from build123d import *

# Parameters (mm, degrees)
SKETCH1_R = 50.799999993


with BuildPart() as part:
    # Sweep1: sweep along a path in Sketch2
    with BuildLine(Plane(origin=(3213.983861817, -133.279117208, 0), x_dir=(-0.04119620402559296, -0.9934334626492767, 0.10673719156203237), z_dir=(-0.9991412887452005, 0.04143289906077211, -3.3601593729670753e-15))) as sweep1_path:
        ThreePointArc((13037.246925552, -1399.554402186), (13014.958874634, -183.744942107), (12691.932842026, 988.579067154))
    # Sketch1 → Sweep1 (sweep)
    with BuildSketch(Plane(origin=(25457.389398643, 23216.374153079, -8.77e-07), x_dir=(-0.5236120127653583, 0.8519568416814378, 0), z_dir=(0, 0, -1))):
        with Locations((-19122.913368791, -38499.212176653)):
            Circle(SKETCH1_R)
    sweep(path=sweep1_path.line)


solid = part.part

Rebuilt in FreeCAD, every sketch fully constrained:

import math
import FreeCAD as App
import Part
import Sketcher
Q = App.Units.Quantity

doc = App.newDocument("Part")
params = doc.addObject("Spreadsheet::Sheet", "Params")
for row, (alias, value) in enumerate([
    ("sketch1_diameter", "4 in"),
], start=1):
    params.set(f"A{row}", alias)
    params.set(f"B{row}", "=" + value)
    params.setAlias(f"B{row}", alias)

body = doc.addObject("PartDesign::Body", "Body")

# Sketch on XY plane
sketch1 = doc.addObject("Sketcher::SketchObject", "Sketch")
body.addObject(sketch1)
sketch1.AttachmentSupport = (doc.XY_Plane, [""])
sketch1.MapMode = "FlatFace"
sketch1.AttachmentOffset = App.Placement(App.Vector(0, 0, 0 * 25.4), App.Rotation())
sketch1.addGeometry(Part.Circle(App.Vector(2671, -13234, 0), App.Vector(0, 0, 1), 51), False)
sketch1.addConstraint(Sketcher.Constraint("Diameter", 0, Q("4 in")))
sketch1.addConstraint(Sketcher.Constraint("DistanceX", -1, 1, 0, 3, Q("2670.709337 mm")))
sketch1.addConstraint(Sketcher.Constraint("DistanceY", 0, 3, -1, 1, Q("13234.172717 mm")))
sketch1.setExpression("Constraints[0]", "Params.sketch1_diameter")

# Sketch on an angled plane
sketch2 = doc.addObject("Sketcher::SketchObject", "Sketch001")
body.addObject(sketch2)
sketch2.Placement = App.Placement(App.Vector(3213.983862, -133.279117, 0), App.Rotation(App.Vector(0.041432899, 0.999141289, 0), App.Vector(0, 0, 1.000000001), App.Vector(0.999141289, -0.041432899, 0), "ZXY"))
sketch2.addGeometry(Part.ArcOfCircle(Part.Circle(App.Vector(-8246, 0, 0), App.Vector(0, 0, 1), 4866), math.radians(151), math.radians(180)), False)
sketch2.addConstraint(Sketcher.Constraint("PointOnObject", 0, 3, -1))
sketch2.addConstraint(Sketcher.Constraint("PointOnObject", 0, 2, -1))
sketch2.addConstraint(Sketcher.Constraint("Radius", 0, Q("4866.260869 mm")))
sketch2.addConstraint(Sketcher.Constraint("DistanceY", -1, 1, 0, 1, Q("2337.632848 mm")))
sketch2.addConstraint(Sketcher.Constraint("DistanceX", 0, 3, -1, 1, Q("8245.892273 mm")))
doc.recompute()

additivepipe = doc.addObject("PartDesign::AdditivePipe", "AdditivePipe")
body.addObject(additivepipe)
additivepipe.Profile = sketch1
additivepipe.Spine = (sketch2, ["Edge1"])

doc.recompute()
